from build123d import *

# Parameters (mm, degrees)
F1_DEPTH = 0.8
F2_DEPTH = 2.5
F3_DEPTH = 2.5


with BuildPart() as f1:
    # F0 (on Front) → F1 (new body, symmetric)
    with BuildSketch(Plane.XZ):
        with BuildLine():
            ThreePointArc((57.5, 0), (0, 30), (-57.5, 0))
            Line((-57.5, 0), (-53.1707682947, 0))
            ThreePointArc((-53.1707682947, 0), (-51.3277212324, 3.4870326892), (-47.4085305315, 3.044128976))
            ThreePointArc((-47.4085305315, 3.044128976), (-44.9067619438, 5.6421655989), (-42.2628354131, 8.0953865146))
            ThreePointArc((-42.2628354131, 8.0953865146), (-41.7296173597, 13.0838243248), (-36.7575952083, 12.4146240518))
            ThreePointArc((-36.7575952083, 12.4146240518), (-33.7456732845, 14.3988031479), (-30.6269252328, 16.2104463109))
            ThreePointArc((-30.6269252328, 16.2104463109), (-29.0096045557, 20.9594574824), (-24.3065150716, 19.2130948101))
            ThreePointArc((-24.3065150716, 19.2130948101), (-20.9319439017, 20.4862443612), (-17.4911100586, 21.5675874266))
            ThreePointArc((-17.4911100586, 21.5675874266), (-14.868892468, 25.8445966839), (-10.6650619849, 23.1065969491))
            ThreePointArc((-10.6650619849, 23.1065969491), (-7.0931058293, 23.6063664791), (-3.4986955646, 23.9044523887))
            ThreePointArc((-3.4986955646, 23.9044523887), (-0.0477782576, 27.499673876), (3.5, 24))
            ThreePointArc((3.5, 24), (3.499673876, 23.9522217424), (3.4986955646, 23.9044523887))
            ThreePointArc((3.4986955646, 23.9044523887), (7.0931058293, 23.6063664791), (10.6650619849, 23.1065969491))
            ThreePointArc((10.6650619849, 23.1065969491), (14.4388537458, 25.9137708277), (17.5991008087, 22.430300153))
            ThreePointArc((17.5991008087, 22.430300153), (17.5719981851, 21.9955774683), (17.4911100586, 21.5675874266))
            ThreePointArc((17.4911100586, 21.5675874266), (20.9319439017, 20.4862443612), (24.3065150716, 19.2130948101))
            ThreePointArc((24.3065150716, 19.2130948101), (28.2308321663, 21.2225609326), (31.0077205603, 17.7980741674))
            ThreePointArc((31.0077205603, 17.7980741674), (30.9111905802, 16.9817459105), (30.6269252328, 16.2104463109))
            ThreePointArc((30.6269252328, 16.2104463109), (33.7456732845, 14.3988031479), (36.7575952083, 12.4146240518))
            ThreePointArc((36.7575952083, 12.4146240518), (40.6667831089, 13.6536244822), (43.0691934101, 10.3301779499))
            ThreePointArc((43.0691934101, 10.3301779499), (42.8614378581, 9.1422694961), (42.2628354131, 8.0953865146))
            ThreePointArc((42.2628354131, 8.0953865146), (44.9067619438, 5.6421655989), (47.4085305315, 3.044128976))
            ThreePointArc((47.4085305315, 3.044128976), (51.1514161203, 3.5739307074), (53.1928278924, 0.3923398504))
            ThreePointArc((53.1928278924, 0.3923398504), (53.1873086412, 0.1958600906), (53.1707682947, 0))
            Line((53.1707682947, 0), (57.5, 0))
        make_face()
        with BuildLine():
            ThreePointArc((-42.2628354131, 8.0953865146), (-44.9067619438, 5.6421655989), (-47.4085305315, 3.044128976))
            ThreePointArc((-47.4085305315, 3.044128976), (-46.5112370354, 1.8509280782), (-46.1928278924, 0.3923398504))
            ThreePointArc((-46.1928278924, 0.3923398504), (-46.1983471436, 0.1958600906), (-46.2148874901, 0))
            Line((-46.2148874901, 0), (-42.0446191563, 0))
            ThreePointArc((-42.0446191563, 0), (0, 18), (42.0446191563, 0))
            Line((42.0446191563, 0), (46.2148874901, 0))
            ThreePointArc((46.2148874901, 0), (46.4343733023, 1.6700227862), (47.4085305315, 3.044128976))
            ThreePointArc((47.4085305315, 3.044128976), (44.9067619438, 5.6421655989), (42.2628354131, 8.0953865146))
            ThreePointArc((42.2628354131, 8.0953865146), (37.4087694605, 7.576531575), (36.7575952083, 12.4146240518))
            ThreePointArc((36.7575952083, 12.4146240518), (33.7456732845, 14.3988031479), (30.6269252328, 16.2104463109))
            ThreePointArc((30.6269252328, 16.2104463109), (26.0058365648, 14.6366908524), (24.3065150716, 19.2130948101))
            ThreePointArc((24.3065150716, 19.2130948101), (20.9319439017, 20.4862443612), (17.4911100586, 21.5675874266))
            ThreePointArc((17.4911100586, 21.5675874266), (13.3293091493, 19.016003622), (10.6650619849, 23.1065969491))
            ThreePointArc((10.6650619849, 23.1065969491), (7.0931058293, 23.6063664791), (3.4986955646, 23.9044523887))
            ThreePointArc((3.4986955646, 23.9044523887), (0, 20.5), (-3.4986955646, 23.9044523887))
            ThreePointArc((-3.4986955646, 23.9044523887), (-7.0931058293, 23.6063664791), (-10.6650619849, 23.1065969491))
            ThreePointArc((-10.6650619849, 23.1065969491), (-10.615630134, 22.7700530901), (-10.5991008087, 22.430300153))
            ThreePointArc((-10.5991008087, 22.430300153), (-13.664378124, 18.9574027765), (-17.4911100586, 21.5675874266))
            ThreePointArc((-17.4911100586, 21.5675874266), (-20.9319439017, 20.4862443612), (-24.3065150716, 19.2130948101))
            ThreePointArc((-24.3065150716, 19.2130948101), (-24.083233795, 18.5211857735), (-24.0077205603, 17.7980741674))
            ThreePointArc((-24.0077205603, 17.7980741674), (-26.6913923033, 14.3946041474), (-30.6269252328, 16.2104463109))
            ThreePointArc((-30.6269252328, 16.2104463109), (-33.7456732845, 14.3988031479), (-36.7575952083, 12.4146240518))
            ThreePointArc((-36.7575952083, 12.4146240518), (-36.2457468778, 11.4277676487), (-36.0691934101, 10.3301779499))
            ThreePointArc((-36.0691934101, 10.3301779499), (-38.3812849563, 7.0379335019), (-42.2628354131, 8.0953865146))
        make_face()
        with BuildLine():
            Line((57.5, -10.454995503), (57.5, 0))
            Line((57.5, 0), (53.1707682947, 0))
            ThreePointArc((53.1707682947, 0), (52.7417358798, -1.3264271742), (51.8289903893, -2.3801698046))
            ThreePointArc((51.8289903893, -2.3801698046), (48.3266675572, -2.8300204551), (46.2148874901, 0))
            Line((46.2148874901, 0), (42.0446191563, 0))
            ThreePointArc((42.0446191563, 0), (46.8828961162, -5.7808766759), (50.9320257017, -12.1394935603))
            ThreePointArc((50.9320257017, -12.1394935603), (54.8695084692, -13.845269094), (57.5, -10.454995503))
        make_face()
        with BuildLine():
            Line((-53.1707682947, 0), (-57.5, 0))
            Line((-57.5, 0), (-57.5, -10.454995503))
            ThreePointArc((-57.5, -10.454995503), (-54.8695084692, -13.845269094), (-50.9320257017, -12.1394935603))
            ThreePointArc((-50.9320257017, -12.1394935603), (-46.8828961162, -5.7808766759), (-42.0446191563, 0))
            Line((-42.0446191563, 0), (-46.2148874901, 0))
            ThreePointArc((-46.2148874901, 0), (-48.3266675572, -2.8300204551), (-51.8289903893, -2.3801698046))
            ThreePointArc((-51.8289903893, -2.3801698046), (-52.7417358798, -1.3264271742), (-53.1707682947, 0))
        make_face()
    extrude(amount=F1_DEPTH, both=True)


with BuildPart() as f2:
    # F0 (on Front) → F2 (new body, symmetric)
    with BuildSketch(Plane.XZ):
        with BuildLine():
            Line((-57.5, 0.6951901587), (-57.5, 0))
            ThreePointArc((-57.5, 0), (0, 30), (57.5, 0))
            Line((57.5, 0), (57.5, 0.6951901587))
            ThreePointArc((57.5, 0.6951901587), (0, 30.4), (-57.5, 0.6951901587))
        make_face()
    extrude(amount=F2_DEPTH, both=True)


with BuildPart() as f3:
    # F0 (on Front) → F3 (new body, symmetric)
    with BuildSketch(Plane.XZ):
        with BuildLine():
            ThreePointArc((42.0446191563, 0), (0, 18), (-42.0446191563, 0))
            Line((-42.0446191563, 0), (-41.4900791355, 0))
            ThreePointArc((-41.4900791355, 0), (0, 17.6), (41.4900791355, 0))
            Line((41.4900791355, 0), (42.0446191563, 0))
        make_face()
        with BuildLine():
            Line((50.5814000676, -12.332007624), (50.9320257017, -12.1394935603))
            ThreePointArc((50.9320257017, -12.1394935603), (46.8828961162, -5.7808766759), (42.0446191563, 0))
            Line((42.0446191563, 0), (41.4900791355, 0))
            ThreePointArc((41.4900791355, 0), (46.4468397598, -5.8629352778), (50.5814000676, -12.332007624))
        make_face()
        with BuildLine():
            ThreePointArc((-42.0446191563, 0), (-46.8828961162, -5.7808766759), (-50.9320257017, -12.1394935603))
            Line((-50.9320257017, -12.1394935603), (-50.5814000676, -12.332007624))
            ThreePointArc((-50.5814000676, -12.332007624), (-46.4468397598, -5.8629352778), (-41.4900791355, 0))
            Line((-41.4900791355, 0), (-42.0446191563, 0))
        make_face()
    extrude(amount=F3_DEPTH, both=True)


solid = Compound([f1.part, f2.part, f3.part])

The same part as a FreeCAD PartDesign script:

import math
import FreeCAD as App
import Part
import Sketcher
from FreeCAD import Vector

doc = App.newDocument("Part")
body = doc.addObject("PartDesign::Body", "Body")

sketch1 = body.newObject("Sketcher::SketchObject", "Sketch")
sketch1.AttachmentSupport = (doc.getObject("XZ_Plane"), [""])
sketch1.MapMode = "FlatFace"
sketch1.addGeometry(Part.ArcOfCircle(Part.Circle(Vector(0, -40.1, 0), Vector(0, 0, 1), 70.1), math.radians(35), math.radians(145)), False)
sketch1.addGeometry(Part.LineSegment(Vector(-57.5, 0, 0), Vector(-57.5, -10.45, 0)), False)
sketch1.addGeometry(Part.ArcOfCircle(Part.Circle(Vector(-54, -10.45, 0), Vector(0, 0, 1), 3.5), math.radians(180), math.radians(331)), False)
sketch1.addGeometry(Part.ArcOfCircle(Part.Circle(Vector(0, -40.1, 0), Vector(0, 0, 1), 58.1), math.radians(136.35), math.radians(151.23)), False)
sketch1.addGeometry(Part.ArcOfCircle(Part.Circle(Vector(0, -40.1, 0), Vector(0, 0, 1), 58.1), math.radians(44), math.radians(136)), False)
sketch1.addGeometry(Part.ArcOfCircle(Part.Circle(Vector(0, -40.1, 0), Vector(0, 0, 1), 58.1), math.radians(28.77), math.radians(43.65)), False)
sketch1.addGeometry(Part.ArcOfCircle(Part.Circle(Vector(54, -10.45, 0), Vector(0, 0, 1), 3.5), math.radians(-151), math.radians(0)), False)
sketch1.addGeometry(Part.LineSegment(Vector(57.5, -10.45, 0), Vector(57.5, 0, 0)), False)
sketch1.addGeometry(Part.ArcOfCircle(Part.Circle(Vector(-49.69, 0.39, 0), Vector(0, 0, 1), 3.5), math.radians(49), math.radians(186)), False)
sketch1.addGeometry(Part.ArcOfCircle(Part.Circle(Vector(-49.69, 0.39, 0), Vector(0, 0, 1), 3.5), math.radians(0), math.radians(49)), False)
sketch1.addGeometry(Part.ArcOfCircle(Part.Circle(Vector(-49.69, 0.39, 0), Vector(0, 0, 1), 3.5), math.radians(-6.44), math.radians(0)), False)
sketch1.addGeometry(Part.ArcOfCircle(Part.Circle(Vector(-49.69, 0.39, 0), Vector(0, 0, 1), 3.5), math.radians(-128), math.radians(-6)), False)
sketch1.addGeometry(Part.ArcOfCircle(Part.Circle(Vector(-49.69, 0.39, 0), Vector(0, 0, 1), 3.5), math.radians(-174), math.radians(-128)), False)
sketch1.addGeometry(Part.ArcOfCircle(Part.Circle(Vector(49.69, 0.39, 0), Vector(0, 0, 1), 3.5), math.radians(131), math.radians(186)), False)
sketch1.addGeometry(Part.ArcOfCircle(Part.Circle(Vector(49.69, 0.39, 0), Vector(0, 0, 1), 3.5), math.radians(0), math.radians(131)), False)
sketch1.addGeometry(Part.ArcOfCircle(Part.Circle(Vector(49.69, 0.39, 0), Vector(0, 0, 1), 3.5), math.radians(-6.44), math.radians(0)), False)
sketch1.addGeometry(Part.ArcOfCircle(Part.Circle(Vector(49.69, 0.39, 0), Vector(0, 0, 1), 3.5), math.radians(-52), math.radians(-6)), False)
sketch1.addGeometry(Part.ArcOfCircle(Part.Circle(Vector(49.69, 0.39, 0), Vector(0, 0, 1), 3.5), math.radians(-174), math.radians(-52)), False)
sketch1.addGeometry(Part.ArcOfCircle(Part.Circle(Vector(-39.57, 10.33, 0), Vector(0, 0, 1), 3.5), math.radians(37), math.radians(220)), False)
sketch1.addGeometry(Part.ArcOfCircle(Part.Circle(Vector(-39.57, 10.33, 0), Vector(0, 0, 1), 3.5), math.radians(0), math.radians(37)), False)
sketch1.addGeometry(Part.ArcOfCircle(Part.Circle(Vector(-39.57, 10.33, 0), Vector(0, 0, 1), 3.5), math.radians(-140), math.radians(0)), False)
sketch1.addGeometry(Part.ArcOfCircle(Part.Circle(Vector(-27.51, 17.8, 0), Vector(0, 0, 1), 3.5), math.radians(24), math.radians(207)), False)
sketch1.addGeometry(Part.ArcOfCircle(Part.Circle(Vector(-27.51, 17.8, 0), Vector(0, 0, 1), 3.5), math.radians(0), math.radians(24)), False)
sketch1.addGeometry(Part.ArcOfCircle(Part.Circle(Vector(-27.51, 17.8, 0), Vector(0, 0, 1), 3.5), math.radians(-153), math.radians(0)), False)
sketch1.addGeometry(Part.ArcOfCircle(Part.Circle(Vector(-14.1, 22.43, 0), Vector(0, 0, 1), 3.5), math.radians(11), math.radians(194)), False)
sketch1.addGeometry(Part.ArcOfCircle(Part.Circle(Vector(-14.1, 22.43, 0), Vector(0, 0, 1), 3.5), math.radians(0), math.radians(11.14)), False)
sketch1.addGeometry(Part.ArcOfCircle(Part.Circle(Vector(-14.1, 22.43, 0), Vector(0, 0, 1), 3.5), math.radians(-166), math.radians(0)), False)
sketch1.addGeometry(Part.ArcOfCircle(Part.Circle(Vector(0, 24, 0), Vector(0, 0, 1), 3.5), math.radians(0), math.radians(182)), False)
sketch1.addGeometry(Part.ArcOfCircle(Part.Circle(Vector(0, 24, 0), Vector(0, 0, 1), 3.5), math.radians(-1.56), math.radians(0)), False)
sketch1.addGeometry(Part.ArcOfCircle(Part.Circle(Vector(0, 24, 0), Vector(0, 0, 1), 3.5), math.radians(-178), math.radians(-2)), False)
sketch1.addGeometry(Part.ArcOfCircle(Part.Circle(Vector(14.1, 22.43, 0), Vector(0, 0, 1), 3.5), math.radians(0), math.radians(169)), False)
sketch1.addGeometry(Part.ArcOfCircle(Part.Circle(Vector(14.1, 22.43, 0), Vector(0, 0, 1), 3.5), math.radians(-14.27), math.radians(0)), False)
sketch1.addGeometry(Part.ArcOfCircle(Part.Circle(Vector(14.1, 22.43, 0), Vector(0, 0, 1), 3.5), math.radians(169), math.radians(346)), False)
sketch1.addGeometry(Part.ArcOfCircle(Part.Circle(Vector(27.51, 17.8, 0), Vector(0, 0, 1), 3.5), math.radians(-27), math.radians(0)), False)
sketch1.addGeometry(Part.ArcOfCircle(Part.Circle(Vector(27.51, 17.8, 0), Vector(0, 0, 1), 3.5), math.radians(0), math.radians(333)), False)
sketch1.addGeometry(Part.ArcOfCircle(Part.Circle(Vector(39.57, 10.33, 0), Vector(0, 0, 1), 3.5), math.radians(0), math.radians(143)), False)
sketch1.addGeometry(Part.ArcOfCircle(Part.Circle(Vector(39.57, 10.33, 0), Vector(0, 0, 1), 3.5), math.radians(-40), math.radians(0)), False)
sketch1.addGeometry(Part.ArcOfCircle(Part.Circle(Vector(39.57, 10.33, 0), Vector(0, 0, 1), 3.5), math.radians(143), math.radians(320)), False)
sketch1.addConstraint(Sketcher.Constraint("Coincident", 0, 2, 1, 1))
sketch1.addConstraint(Sketcher.Constraint("Tangent", 1, 2, 2, 1))
sketch1.addConstraint(Sketcher.Constraint("Tangent", 2, 2, 3, 2))
sketch1.addConstraint(Sketcher.Constraint("Tangent", 3, 1, 4, 2))
sketch1.addConstraint(Sketcher.Constraint("Tangent", 4, 1, 5, 2))
sketch1.addConstraint(Sketcher.Constraint("Tangent", 5, 1, 6, 1))
sketch1.addConstraint(Sketcher.Constraint("Tangent", 6, 2, 7, 1))
sketch1.addConstraint(Sketcher.Constraint("Coincident", 7, 2, 0, 1))
sketch1.addConstraint(Sketcher.Constraint("Tangent", 8, 1, 9, 2))
sketch1.addConstraint(Sketcher.Constraint("Tangent", 9, 1, 10, 2))
sketch1.addConstraint(Sketcher.Constraint("Tangent", 10, 1, 11, 2))
sketch1.addConstraint(Sketcher.Constraint("Tangent", 11, 1, 12, 2))
sketch1.addConstraint(Sketcher.Constraint("Tangent", 12, 1, 8, 2))
sketch1.addConstraint(Sketcher.Constraint("Tangent", 13, 1, 14, 2))
sketch1.addConstraint(Sketcher.Constraint("Tangent", 14, 1, 15, 2))
sketch1.addConstraint(Sketcher.Constraint("Tangent", 15, 1, 16, 2))
sketch1.addConstraint(Sketcher.Constraint("Tangent", 16, 1, 17, 2))
sketch1.addConstraint(Sketcher.Constraint("Tangent", 17, 1, 13, 2))
sketch1.addConstraint(Sketcher.Constraint("Tangent", 18, 1, 19, 2))
sketch1.addConstraint(Sketcher.Constraint("Tangent", 19, 1, 20, 2))
sketch1.addConstraint(Sketcher.Constraint("Tangent", 20, 1, 18, 2))
sketch1.addConstraint(Sketcher.Constraint("Tangent", 21, 1, 22, 2))
sketch1.addConstraint(Sketcher.Constraint("Tangent", 22, 1, 23, 2))
sketch1.addConstraint(Sketcher.Constraint("Tangent", 23, 1, 21, 2))
sketch1.addConstraint(Sketcher.Constraint("Tangent", 24, 1, 25, 2))
sketch1.addConstraint(Sketcher.Constraint("Tangent", 25, 1, 26, 2))
sketch1.addConstraint(Sketcher.Constraint("Tangent", 26, 1, 24, 2))
sketch1.addConstraint(Sketcher.Constraint("Tangent", 27, 1, 28, 2))
sketch1.addConstraint(Sketcher.Constraint("Tangent", 28, 1, 29, 2))
sketch1.addConstraint(Sketcher.Constraint("Tangent", 29, 1, 27, 2))
sketch1.addConstraint(Sketcher.Constraint("Tangent", 30, 1, 31, 2))
sketch1.addConstraint(Sketcher.Constraint("Tangent", 31, 1, 32, 2))
sketch1.addConstraint(Sketcher.Constraint("Tangent", 32, 1, 30, 2))
sketch1.addConstraint(Sketcher.Constraint("Tangent", 33, 1, 34, 2))
sketch1.addConstraint(Sketcher.Constraint("Coincident", 34, 1, 33, 2))
sketch1.addConstraint(Sketcher.Constraint("Tangent", 35, 1, 36, 2))
sketch1.addConstraint(Sketcher.Constraint("Tangent", 36, 1, 37, 2))
sketch1.addConstraint(Sketcher.Constraint("Tangent", 37, 1, 35, 2))
sketch1.addConstraint(Sketcher.Constraint("Vertical", 1))
sketch1.addConstraint(Sketcher.Constraint("Vertical", 7))
sketch1.addConstraint(Sketcher.Constraint("Coincident", 3, 3, 0, 3))
sketch1.addConstraint(Sketcher.Constraint("Coincident", 5, 3, 0, 3))
sketch1.addConstraint(Sketcher.Constraint("Coincident", 10, 3, 8, 3))
sketch1.addConstraint(Sketcher.Constraint("Coincident", 15, 3, 13, 3))
sketch1.addConstraint(Sketcher.Constraint("Equal", 2, 6))
sketch1.addConstraint(Sketcher.Constraint("Equal", 6, 8))
sketch1.addConstraint(Sketcher.Constraint("Equal", 12, 13))
sketch1.addConstraint(Sketcher.Constraint("Equal", 17, 18))
sketch1.addConstraint(Sketcher.Constraint("Equal", 20, 21))
sketch1.addConstraint(Sketcher.Constraint("Equal", 23, 24))
sketch1.addConstraint(Sketcher.Constraint("Equal", 26, 27))
sketch1.addConstraint(Sketcher.Constraint("Equal", 29, 30))
sketch1.addConstraint(Sketcher.Constraint("Equal", 32, 33))
sketch1.addConstraint(Sketcher.Constraint("Equal", 34, 35))
sketch1.addConstraint(Sketcher.Constraint("Symmetric", 3, 1, 4, 1, -1, 1))
sketch1.addConstraint(Sketcher.Constraint("Symmetric", 0, 2, 7, 2, -1, 1))
sketch1.addConstraint(Sketcher.Constraint("Symmetric", 12, 1, 15, 1, -1, 1))
sketch1.addConstraint(Sketcher.Constraint("Symmetric", 10, 1, 17, 1, -1, 1))
sketch1.addConstraint(Sketcher.Constraint("Symmetric", 8, 3, 13, 3, -2))
sketch1.addConstraint(Sketcher.Constraint("Symmetric", 24, 3, 30, 3, -2))
sketch1.addConstraint(Sketcher.Constraint("Symmetric", 21, 3, 33, 3, -2))
sketch1.addConstraint(Sketcher.Constraint("Symmetric", 18, 3, 35, 3, -2))
sketch1.addConstraint(Sketcher.Constraint("Symmetric", 28, 1, 29, 1, -2))
sketch1.addConstraint(Sketcher.Constraint("PointOnObject", 0, 3, -2))
sketch1.addConstraint(Sketcher.Constraint("Horizontal", 17, 3, 9, 1))
sketch1.addConstraint(Sketcher.Constraint("Horizontal", 8, 1, 13, 1))
sketch1.addConstraint(Sketcher.Constraint("Horizontal", 9, 1, 14, 1))
sketch1.addConstraint(Sketcher.Constraint("Horizontal", 11, 1, 16, 1))
sketch1.addConstraint(Sketcher.Constraint("Horizontal", 37, 3, 19, 1))
sketch1.addConstraint(Sketcher.Constraint("Horizontal", 34, 3, 22, 1))
sketch1.addConstraint(Sketcher.Constraint("Horizontal", 32, 3, 25, 1))
sketch1.addConstraint(Sketcher.Constraint("Horizontal", 29, 3, 27, 1))
sketch1.addConstraint(Sketcher.Constraint("Horizontal", 25, 1, 30, 1))
sketch1.addConstraint(Sketcher.Constraint("Horizontal", 26, 1, 31, 1))
sketch1.addConstraint(Sketcher.Constraint("Horizontal", 24, 1, 32, 1))
sketch1.addConstraint(Sketcher.Constraint("Horizontal", 23, 1, 33, 1))
sketch1.addConstraint(Sketcher.Constraint("Horizontal", 22, 1, 34, 1))
sketch1.addConstraint(Sketcher.Constraint("Horizontal", 19, 1, 35, 1))
sketch1.addConstraint(Sketcher.Constraint("Horizontal", 20, 1, 36, 1))
sketch1.addConstraint(Sketcher.Constraint("Horizontal", 18, 1, 37, 1))
sketch1.addConstraint(Sketcher.Constraint("Radius", 2, 3.5))
sketch1.addConstraint(Sketcher.Constraint("DistanceX", 2, 3, -1, 1, 54.0))
sketch1.addConstraint(Sketcher.Constraint("DistanceY", -1, 1, 27, 3, 24.0))
sketch1.addConstraint(Sketcher.Constraint("Radius", 0, 70.104167))
sketch1.addConstraint(Sketcher.Constraint("Radius", 3, 58.104167))
sketch1.addConstraint(Sketcher.Constraint("DistanceX", 24, 3, -1, 1, 14.099101))
sketch1.addConstraint(Sketcher.Constraint("DistanceY", -1, 1, 24, 3, 22.4303))
sketch1.addConstraint(Sketcher.Constraint("DistanceY", -1, 1, 8, 3, 0.39234))
sketch1.addConstraint(Sketcher.Constraint("DistanceX", 21, 3, -1, 1, 27.507721))
sketch1.addConstraint(Sketcher.Constraint("DistanceX", 8, 1, -1, 1, 47.408531))
sketch1.addConstraint(Sketcher.Constraint("DistanceY", -1, 1, 8, 1, 3.044129))
sketch1.addConstraint(Sketcher.Constraint("DistanceX", 11, 1, -1, 1, 51.82899))
sketch1.addConstraint(Sketcher.Constraint("DistanceX", 24, 1, -1, 1, 10.665062))
sketch1.addConstraint(Sketcher.Constraint("DistanceX", 26, 1, -1, 1, 17.49111))
sketch1.addConstraint(Sketcher.Constraint("DistanceX", 18, 3, -1, 1, 39.569193))
sketch1.addConstraint(Sketcher.Constraint("DistanceY", -1, 1, 18, 3, 10.330178))
sketch1.addConstraint(Sketcher.Constraint("DistanceY", -1, 1, 21, 3, 17.798074))
sketch1.addConstraint(Sketcher.Constraint("DistanceX", 18, 1, -1, 1, 36.757595))
sketch1.addConstraint(Sketcher.Constraint("DistanceX", 20, 1, -1, 1, 42.262835))
sketch1.addConstraint(Sketcher.Constraint("DistanceX", 21, 1, -1, 1, 24.306515))
sketch1.addConstraint(Sketcher.Constraint("DistanceX", 23, 1, -1, 1, 30.626925))
sketch1.addConstraint(Sketcher.Constraint("DistanceX", -1, 1, 28, 1, 3.498696))
pad1 = body.newObject("PartDesign::Pad", "Pad")
pad1.Profile = sketch1
pad1.Length = 1.6
pad1.Midplane = True
body2 = doc.addObject("PartDesign::Body", "Body001")

sketch2 = body2.newObject("Sketcher::SketchObject", "Sketch001")
sketch2.AttachmentSupport = (doc.getObject("XZ_Plane001"), [""])
sketch2.MapMode = "FlatFace"
sketch2.addGeometry(Part.LineSegment(Vector(-57.5, 0.7, 0), Vector(-57.5, 0, 0)), False)
sketch2.addGeometry(Part.ArcOfCircle(Part.Circle(Vector(0, -40.1, 0), Vector(0, 0, 1), 70.1), math.radians(35), math.radians(145)), False)
sketch2.addGeometry(Part.LineSegment(Vector(57.5, 0, 0), Vector(57.5, 0.7, 0)), False)
sketch2.addGeometry(Part.ArcOfCircle(Part.Circle(Vector(0, -40.1, 0), Vector(0, 0, 1), 70.5), math.radians(35), math.radians(145)), False)
sketch2.addConstraint(Sketcher.Constraint("Coincident", 0, 2, 1, 2))
sketch2.addConstraint(Sketcher.Constraint("Coincident", 1, 1, 2, 1))
sketch2.addConstraint(Sketcher.Constraint("Coincident", 2, 2, 3, 1))
sketch2.addConstraint(Sketcher.Constraint("Coincident", 3, 2, 0, 1))
sketch2.addConstraint(Sketcher.Constraint("Vertical", 0))
sketch2.addConstraint(Sketcher.Constraint("Vertical", 2))
sketch2.addConstraint(Sketcher.Constraint("Coincident", 3, 3, 1, 3))
sketch2.addConstraint(Sketcher.Constraint("Symmetric", 0, 2, 1, 1, -1, 1))
sketch2.addConstraint(Sketcher.Constraint("PointOnObject", 1, 3, -2))
sketch2.addConstraint(Sketcher.Constraint("DistanceX", 0, 2, 1, 1, 115.0))
sketch2.addConstraint(Sketcher.Constraint("Radius", 1, 70.104167))
sketch2.addConstraint(Sketcher.Constraint("Radius", 3, 70.504167))
pad2 = body2.newObject("PartDesign::Pad", "Pad001")
pad2.Profile = sketch2
pad2.Length = 5
pad2.Midplane = True
body3 = doc.addObject("PartDesign::Body", "Body002")

sketch3 = body3.newObject("Sketcher::SketchObject", "Sketch002")
sketch3.AttachmentSupport = (doc.getObject("XZ_Plane002"), [""])
sketch3.MapMode = "FlatFace"
sketch3.addGeometry(Part.ArcOfCircle(Part.Circle(Vector(0, -40.1, 0), Vector(0, 0, 1), 58.1), math.radians(44), math.radians(136)), False)
sketch3.addGeometry(Part.ArcOfCircle(Part.Circle(Vector(0, -40.1, 0), Vector(0, 0, 1), 58.1), math.radians(136.35), math.radians(151.23)), False)
sketch3.addGeometry(Part.LineSegment(Vector(-50.93, -12.14, 0), Vector(-50.58, -12.33, 0)), False)
sketch3.addGeometry(Part.ArcOfCircle(Part.Circle(Vector(0, -40.1, 0), Vector(0, 0, 1), 57.7), math.radians(135.97), math.radians(151.23)), False)
sketch3.addGeometry(Part.ArcOfCircle(Part.Circle(Vector(0, -40.1, 0), Vector(0, 0, 1), 57.7), math.radians(44), math.radians(136)), False)
sketch3.addGeometry(Part.ArcOfCircle(Part.Circle(Vector(0, -40.1, 0), Vector(0, 0, 1), 57.7), math.radians(28.77), math.radians(44.03)), False)
sketch3.addGeometry(Part.LineSegment(Vector(50.58, -12.33, 0), Vector(50.93, -12.14, 0)), False)
sketch3.addGeometry(Part.ArcOfCircle(Part.Circle(Vector(0, -40.1, 0), Vector(0, 0, 1), 58.1), math.radians(28.77), math.radians(43.65)), False)
sketch3.addConstraint(Sketcher.Constraint("Tangent", 0, 2, 1, 1))
sketch3.addConstraint(Sketcher.Constraint("Coincident", 1, 2, 2, 1))
sketch3.addConstraint(Sketcher.Constraint("Coincident", 2, 2, 3, 2))
sketch3.addConstraint(Sketcher.Constraint("Tangent", 3, 1, 4, 2))
sketch3.addConstraint(Sketcher.Constraint("Tangent", 4, 1, 5, 2))
sketch3.addConstraint(Sketcher.Constraint("Coincident", 5, 1, 6, 1))
sketch3.addConstraint(Sketcher.Constraint("Coincident", 6, 2, 7, 1))
sketch3.addConstraint(Sketcher.Constraint("Tangent", 7, 2, 0, 1))
sketch3.addConstraint(Sketcher.Constraint("Coincident", 3, 3, 0, 3))
sketch3.addConstraint(Sketcher.Constraint("Coincident", 5, 3, 0, 3))
sketch3.addConstraint(Sketcher.Constraint("Equal", 0, 1))
sketch3.addConstraint(Sketcher.Constraint("Equal", 1, 7))
sketch3.addConstraint(Sketcher.Constraint("Symmetric", 3, 1, 4, 1, -1, 1))
sketch3.addConstraint(Sketcher.Constraint("Symmetric", 0, 2, 7, 2, -1, 1))
sketch3.addConstraint(Sketcher.Constraint("Symmetric", 2, 2, 5, 1, -2))
sketch3.addConstraint(Sketcher.Constraint("Horizontal", 1, 2, 6, 2))
sketch3.addConstraint(Sketcher.Constraint("Distance", 2, 0.4))
sketch3.addConstraint(Sketcher.Constraint("Radius", 0, 58.104167))
sketch3.addConstraint(Sketcher.Constraint("DistanceX", 2, 2, -1, 1, 50.5814))
sketch3.addConstraint(Sketcher.Constraint("DistanceX", 0, 2, -1, 1, 42.044619))
sketch3.addConstraint(Sketcher.Constraint("DistanceX", 1, 2, -1, 1, 50.932026))
pad3 = body3.newObject("PartDesign::Pad", "Pad002")
pad3.Profile = sketch3
pad3.Length = 5
pad3.Midplane = True

doc.recompute()
